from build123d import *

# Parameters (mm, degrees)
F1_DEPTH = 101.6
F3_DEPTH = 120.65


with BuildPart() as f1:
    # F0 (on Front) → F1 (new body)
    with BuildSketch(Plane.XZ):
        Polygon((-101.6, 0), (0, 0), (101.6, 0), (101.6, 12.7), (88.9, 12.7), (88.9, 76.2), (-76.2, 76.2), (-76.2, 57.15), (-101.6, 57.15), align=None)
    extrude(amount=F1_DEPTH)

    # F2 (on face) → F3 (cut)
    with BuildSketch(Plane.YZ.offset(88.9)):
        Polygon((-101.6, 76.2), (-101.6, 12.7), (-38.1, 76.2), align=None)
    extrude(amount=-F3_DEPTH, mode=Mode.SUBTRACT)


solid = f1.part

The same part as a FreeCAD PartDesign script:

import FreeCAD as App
import Part
import Sketcher
from FreeCAD import Vector
Q = App.Units.Quantity

doc = App.newDocument("Part")
params = doc.addObject("Spreadsheet::Sheet", "Params")
for row, (alias, value) in enumerate([
    ("sketch1_width", "8 in"),
    ("sketch1_width2", "1 in"),
    ("sketch1_width3", "0.5 in"),
    ("sketch1_height", "2.5 in"),
    ("sketch1_height2", "0.75 in"),
    ("pad1_length", "4 in"),
    ("sketch2_width", "2.5 in"),
    ("pocket1_length", "4.75 in"),
], start=1):
    params.set(f"A{row}", alias)
    params.set(f"B{row}", "=" + value)
    params.setAlias(f"B{row}", alias)

body = doc.addObject("PartDesign::Body", "Body")

# Sketch on XZ plane
sketch1 = body.newObject("Sketcher::SketchObject", "Sketch")
sketch1.AttachmentSupport = (doc.getObject("XZ_Plane"), [""])
sketch1.MapMode = "FlatFace"
sketch1.addGeometry([
    Part.LineSegment(Vector(-102, 0, 0), Vector(102, 0, 0)),  # 0
    Part.LineSegment(Vector(102, 0, 0), Vector(102, 13, 0)),  # 1
    Part.LineSegment(Vector(102, 13, 0), Vector(89, 13, 0)),  # 2
    Part.LineSegment(Vector(89, 13, 0), Vector(89, 76, 0)),  # 3
    Part.LineSegment(Vector(89, 76, 0), Vector(-76, 76, 0)),  # 4
    Part.LineSegment(Vector(-76, 76, 0), Vector(-76, 57, 0)),  # 5
    Part.LineSegment(Vector(-76, 57, 0), Vector(-102, 57, 0)),  # 6
    Part.LineSegment(Vector(-102, 57, 0), Vector(-102, 0, 0)),  # 7
], False)
sketch1.addConstraint([
    Sketcher.Constraint("Coincident", 0, 2, 1, 1),
    Sketcher.Constraint("Coincident", 1, 2, 2, 1),
    Sketcher.Constraint("Coincident", 2, 2, 3, 1),
    Sketcher.Constraint("Coincident", 3, 2, 4, 1),
    Sketcher.Constraint("Coincident", 4, 2, 5, 1),
    Sketcher.Constraint("Coincident", 5, 2, 6, 1),
    Sketcher.Constraint("Coincident", 6, 2, 7, 1),
    Sketcher.Constraint("Coincident", 7, 2, 0, 1),
    Sketcher.Constraint("Horizontal", 0),
    Sketcher.Constraint("Vertical", 1),
    Sketcher.Constraint("Horizontal", 2),
    Sketcher.Constraint("Vertical", 3),
    Sketcher.Constraint("Horizontal", 4),
    Sketcher.Constraint("Vertical", 5),
    Sketcher.Constraint("Horizontal", 6),
    Sketcher.Constraint("Vertical", 7),
    Sketcher.Constraint("Symmetric", 0, 2, 7, 2, -1, 1),
    Sketcher.Constraint("Equal", 2, 1),
    Sketcher.Constraint("DistanceX", 0, 1, 0, 2, Q("8 in")),
    Sketcher.Constraint("DistanceX", 6, 2, 6, 1, Q("1 in")),
    Sketcher.Constraint("DistanceX", 2, 2, 2, 1, Q("0.5 in")),
    Sketcher.Constraint("DistanceY", 3, 1, 3, 2, Q("2.5 in")),
    Sketcher.Constraint("DistanceY", 5, 2, 5, 1, Q("0.75 in")),
])
sketch1.setExpression("Constraints[18]", "Params.sketch1_width")
sketch1.setExpression("Constraints[19]", "Params.sketch1_width2")
sketch1.setExpression("Constraints[20]", "Params.sketch1_width3")
sketch1.setExpression("Constraints[21]", "Params.sketch1_height")
sketch1.setExpression("Constraints[22]", "Params.sketch1_height2")
pad1 = body.newObject("PartDesign::Pad", "Pad")
pad1.Profile = sketch1
pad1.setExpression("Length", "Params.pad1_length")

# Sketch on YZ plane
sketch2 = body.newObject("Sketcher::SketchObject", "Sketch001")
sketch2.AttachmentSupport = (doc.getObject("YZ_Plane"), [""])
sketch2.MapMode = "FlatFace"
sketch2.AttachmentOffset = App.Placement(Vector(0, 0, 3.5 * 25.4), App.Rotation())
sketch2.addGeometry([
    Part.LineSegment(Vector(-102, 76, 0), Vector(-102, 13, 0)),
    Part.LineSegment(Vector(-102, 13, 0), Vector(-38, 76, 0)),
    Part.LineSegment(Vector(-38, 76, 0), Vector(-102, 76, 0)),
], False)
sketch2.addConstraint([
    Sketcher.Constraint("Coincident", 0, 2, 1, 1),
    Sketcher.Constraint("Coincident", 1, 2, 2, 1),
    Sketcher.Constraint("Coincident", 2, 2, 0, 1),
    Sketcher.Constraint("Vertical", 0),
    Sketcher.Constraint("Horizontal", 2),
    Sketcher.Constraint("Equal", 2, 0),
    Sketcher.Constraint("DistanceX", 2, 2, 2, 1, Q("2.5 in")),
    Sketcher.Constraint("DistanceX", 0, 2, -1, 1, Q("4 in")),
    Sketcher.Constraint("DistanceY", -1, 1, 1, 2, Q("3 in")),
])
sketch2.setExpression("Constraints[6]", "Params.sketch2_width")
pocket1 = body.newObject("PartDesign::Pocket", "Pocket")
pocket1.Profile = sketch2
pocket1.setExpression("Length", "Params.pocket1_length")

doc.recompute()
